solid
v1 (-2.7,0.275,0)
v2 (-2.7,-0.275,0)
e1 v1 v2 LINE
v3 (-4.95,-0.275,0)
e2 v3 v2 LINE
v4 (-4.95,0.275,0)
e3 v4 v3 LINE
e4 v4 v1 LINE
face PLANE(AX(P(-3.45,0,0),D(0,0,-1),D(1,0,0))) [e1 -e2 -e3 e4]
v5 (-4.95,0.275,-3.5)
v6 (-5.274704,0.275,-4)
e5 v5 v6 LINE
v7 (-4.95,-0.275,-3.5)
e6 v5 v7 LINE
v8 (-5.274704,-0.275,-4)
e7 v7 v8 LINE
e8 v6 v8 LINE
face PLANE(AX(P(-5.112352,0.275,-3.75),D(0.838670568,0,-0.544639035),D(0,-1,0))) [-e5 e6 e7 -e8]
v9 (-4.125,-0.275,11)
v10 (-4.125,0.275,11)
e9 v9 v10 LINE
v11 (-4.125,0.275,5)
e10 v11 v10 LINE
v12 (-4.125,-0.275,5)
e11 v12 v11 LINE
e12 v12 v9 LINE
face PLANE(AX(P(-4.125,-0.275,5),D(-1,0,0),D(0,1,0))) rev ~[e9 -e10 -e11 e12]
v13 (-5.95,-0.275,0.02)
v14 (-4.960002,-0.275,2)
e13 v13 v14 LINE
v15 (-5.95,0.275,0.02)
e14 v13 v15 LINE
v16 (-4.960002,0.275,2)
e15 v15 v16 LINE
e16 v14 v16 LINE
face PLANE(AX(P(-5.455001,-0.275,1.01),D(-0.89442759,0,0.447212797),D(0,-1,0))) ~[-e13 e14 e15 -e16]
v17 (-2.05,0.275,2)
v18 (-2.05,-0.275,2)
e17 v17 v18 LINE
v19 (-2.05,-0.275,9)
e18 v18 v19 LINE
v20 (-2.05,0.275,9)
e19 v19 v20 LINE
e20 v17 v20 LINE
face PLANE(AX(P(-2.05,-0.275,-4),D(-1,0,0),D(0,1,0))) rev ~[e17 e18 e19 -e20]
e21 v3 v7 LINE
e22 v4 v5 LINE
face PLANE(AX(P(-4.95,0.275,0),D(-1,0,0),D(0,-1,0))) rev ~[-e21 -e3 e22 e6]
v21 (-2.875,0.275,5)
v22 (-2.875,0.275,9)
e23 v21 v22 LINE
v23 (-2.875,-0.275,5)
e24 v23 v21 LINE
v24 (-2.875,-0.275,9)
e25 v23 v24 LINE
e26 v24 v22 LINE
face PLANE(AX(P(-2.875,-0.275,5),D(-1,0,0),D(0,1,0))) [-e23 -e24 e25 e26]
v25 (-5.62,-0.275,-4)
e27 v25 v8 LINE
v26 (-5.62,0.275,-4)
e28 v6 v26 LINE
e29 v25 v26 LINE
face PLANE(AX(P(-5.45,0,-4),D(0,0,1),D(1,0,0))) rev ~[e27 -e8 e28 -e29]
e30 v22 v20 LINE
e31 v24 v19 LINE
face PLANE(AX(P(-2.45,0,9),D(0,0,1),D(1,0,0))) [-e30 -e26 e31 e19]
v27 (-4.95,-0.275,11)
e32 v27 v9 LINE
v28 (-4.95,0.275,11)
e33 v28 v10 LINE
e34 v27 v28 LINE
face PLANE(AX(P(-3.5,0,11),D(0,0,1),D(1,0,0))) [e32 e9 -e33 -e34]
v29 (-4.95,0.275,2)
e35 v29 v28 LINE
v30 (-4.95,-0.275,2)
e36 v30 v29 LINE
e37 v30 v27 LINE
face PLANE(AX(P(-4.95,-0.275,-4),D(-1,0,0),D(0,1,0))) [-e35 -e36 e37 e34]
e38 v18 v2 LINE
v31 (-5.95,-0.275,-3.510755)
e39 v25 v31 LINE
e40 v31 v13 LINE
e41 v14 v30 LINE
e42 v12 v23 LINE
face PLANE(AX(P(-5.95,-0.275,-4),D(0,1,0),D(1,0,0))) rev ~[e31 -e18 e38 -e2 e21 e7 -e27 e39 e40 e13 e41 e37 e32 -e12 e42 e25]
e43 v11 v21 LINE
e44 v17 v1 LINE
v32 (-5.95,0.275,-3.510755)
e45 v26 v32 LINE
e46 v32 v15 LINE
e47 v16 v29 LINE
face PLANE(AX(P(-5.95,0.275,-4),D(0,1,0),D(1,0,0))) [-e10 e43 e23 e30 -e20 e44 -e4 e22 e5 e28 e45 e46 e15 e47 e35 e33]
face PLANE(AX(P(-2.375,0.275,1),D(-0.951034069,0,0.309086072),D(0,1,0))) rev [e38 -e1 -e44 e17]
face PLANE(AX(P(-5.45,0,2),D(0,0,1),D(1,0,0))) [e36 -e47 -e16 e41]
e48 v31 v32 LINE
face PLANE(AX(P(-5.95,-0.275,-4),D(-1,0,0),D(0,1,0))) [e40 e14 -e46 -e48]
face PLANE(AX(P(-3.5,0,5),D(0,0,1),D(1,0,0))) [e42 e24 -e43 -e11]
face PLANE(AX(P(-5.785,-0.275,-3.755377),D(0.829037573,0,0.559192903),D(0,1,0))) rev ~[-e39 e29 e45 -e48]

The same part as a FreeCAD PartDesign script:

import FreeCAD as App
import Part
import Sketcher

V = App.Vector
Q = App.Units.Quantity


def edges_at(feature, points):
    """Names of the edges that pass closest to the given points."""
    edges = feature.Shape.Edges
    near = lambda p: min(range(len(edges)), key=lambda i: edges[i].distToShape(Part.Vertex(*p))[0])
    return sorted({f"Edge{near(p) + 1}" for p in points})

doc = App.newDocument("Part")
body = doc.addObject("PartDesign::Body", "Body")

sketch1 = doc.addObject("Sketcher::SketchObject", "Sketch")
body.addObject(sketch1)
sketch1.AttachmentSupport = (doc.XY_Plane, [""])
sketch1.MapMode = "FlatFace"
sketch1.addGeometry([
    Part.LineSegment(V(-5, 0.3, 0), V(-5, -0.3, 0)),
    Part.LineSegment(V(-5, -0.3, 0), V(-2, -0.3, 0)),
    Part.LineSegment(V(-2, -0.3, 0), V(-2, 0.3, 0)),
    Part.LineSegment(V(-2, 0.3, 0), V(-5, 0.3, 0)),
], False)
sketch1.addConstraint([
    Sketcher.Constraint("Coincident", 0, 2, 1, 1),
    Sketcher.Constraint("Coincident", 1, 2, 2, 1),
    Sketcher.Constraint("Coincident", 2, 2, 3, 1),
    Sketcher.Constraint("Coincident", 3, 2, 0, 1),
    Sketcher.Constraint("Vertical", 0),
    Sketcher.Constraint("Horizontal", 1),
    Sketcher.Constraint("Vertical", 2),
    Sketcher.Constraint("Horizontal", 3),
    Sketcher.Constraint("DistanceX", 1, 1, 1, 2, Q("2.9 mm")),
    Sketcher.Constraint("DistanceY", 0, 2, 0, 1, Q("0.55 mm")),
    Sketcher.Constraint("DistanceX", 0, 2, -1, 1, Q("4.95 mm")),
    Sketcher.Constraint("DistanceY", 0, 2, -1, 1, Q("0.275 mm")),
])
pad1 = doc.addObject("PartDesign::Pad", "Pad")
body.addObject(pad1)
pad1.Profile = sketch1
pad1.Length = 15

sketch2 = doc.addObject("Sketcher::SketchObject", "Sketch001")
body.addObject(sketch2)
sketch2.AttachmentSupport = (doc.XY_Plane, [""])
sketch2.MapMode = "FlatFace"
sketch2.AttachmentOffset = App.Placement(V(0, 0, 9), App.Rotation())
sketch2.addGeometry([
    Part.LineSegment(V(-4.1, 0.3, 0), V(-4.1, -0.3, 0)),
    Part.LineSegment(V(-4.1, -0.3, 0), V(-2.9, -0.3, 0)),
    Part.LineSegment(V(-2.9, -0.3, 0), V(-2.9, 0.3, 0)),
    Part.LineSegment(V(-2.9, 0.3, 0), V(-4.1, 0.3, 0)),
], False)
sketch2.addConstraint([
    Sketcher.Constraint("Coincident", 0, 2, 1, 1),
    Sketcher.Constraint("Coincident", 1, 2, 2, 1),
    Sketcher.Constraint("Coincident", 2, 2, 3, 1),
    Sketcher.Constraint("Coincident", 3, 2, 0, 1),
    Sketcher.Constraint("Vertical", 0),
    Sketcher.Constraint("Horizontal", 1),
    Sketcher.Constraint("Vertical", 2),
    Sketcher.Constraint("Horizontal", 3),
    Sketcher.Constraint("DistanceX", 1, 1, 1, 2, Q("1.25 mm")),
    Sketcher.Constraint("DistanceY", 0, 2, 0, 1, Q("0.55 mm")),
    Sketcher.Constraint("DistanceX", 0, 2, -1, 1, Q("4.125 mm")),
    Sketcher.Constraint("DistanceY", 0, 2, -1, 1, Q("0.275 mm")),
])
pocket1 = doc.addObject("PartDesign::Pocket", "Pocket")
body.addObject(pocket1)
pocket1.Profile = sketch2
pocket1.Length = 6
pocket1.Reversed = True

sketch3 = doc.addObject("Sketcher::SketchObject", "Sketch002")
body.addObject(sketch3)
sketch3.AttachmentSupport = (doc.XY_Plane, [""])
sketch3.MapMode = "FlatFace"
sketch3.AttachmentOffset = App.Placement(V(0, 0, 13), App.Rotation())
sketch3.addGeometry([
    Part.LineSegment(V(-3, 0.3, 0), V(-3, -0.3, 0)),
    Part.LineSegment(V(-3, -0.3, 0), V(-1.9, -0.3, 0)),
    Part.LineSegment(V(-1.9, -0.3, 0), V(-1.9, 0.3, 0)),
    Part.LineSegment(V(-1.9, 0.3, 0), V(-3, 0.3, 0)),
], False)
sketch3.addConstraint([
    Sketcher.Constraint("Coincident", 0, 2, 1, 1),
    Sketcher.Constraint("Coincident", 1, 2, 2, 1),
    Sketcher.Constraint("Coincident", 2, 2, 3, 1),
    Sketcher.Constraint("Coincident", 3, 2, 0, 1),
    Sketcher.Constraint("Vertical", 0),
    Sketcher.Constraint("Horizontal", 1),
    Sketcher.Constraint("Vertical", 2),
    Sketcher.Constraint("Horizontal", 3),
    Sketcher.Constraint("DistanceX", 1, 1, 1, 2, Q("1.1 mm")),
    Sketcher.Constraint("DistanceY", 0, 2, 0, 1, Q("0.6 mm")),
    Sketcher.Constraint("DistanceX", 0, 2, -1, 1, Q("3 mm")),
    Sketcher.Constraint("DistanceY", 0, 2, -1, 1, Q("0.3 mm")),
])
pocket2 = doc.addObject("PartDesign::Pocket", "Pocket001")
body.addObject(pocket2)
pocket2.Profile = sketch3
pocket2.Length = 2
pocket2.Reversed = True

sketch4 = doc.addObject("Sketcher::SketchObject", "Sketch003")
body.addObject(sketch4)
sketch4.AttachmentSupport = (doc.XY_Plane, [""])
sketch4.MapMode = "FlatFace"
sketch4.addGeometry([
    Part.LineSegment(V(-6, 0.3, 0), V(-6, -0.3, 0)),
    Part.LineSegment(V(-6, -0.3, 0), V(-5, -0.3, 0)),
    Part.LineSegment(V(-5, -0.3, 0), V(-5, 0.3, 0)),
    Part.LineSegment(V(-5, 0.3, 0), V(-6, 0.3, 0)),
], False)
sketch4.addConstraint([
    Sketcher.Constraint("Coincident", 0, 2, 1, 1),
    Sketcher.Constraint("Coincident", 1, 2, 2, 1),
    Sketcher.Constraint("Coincident", 2, 2, 3, 1),
    Sketcher.Constraint("Coincident", 3, 2, 0, 1),
    Sketcher.Constraint("Vertical", 0),
    Sketcher.Constraint("Horizontal", 1),
    Sketcher.Constraint("Vertical", 2),
    Sketcher.Constraint("Horizontal", 3),
    Sketcher.Constraint("DistanceX", 1, 1, 1, 2, Q("1 mm")),
    Sketcher.Constraint("DistanceY", 0, 2, 0, 1, Q("0.55 mm")),
    Sketcher.Constraint("DistanceX", 0, 2, -1, 1, Q("5.95 mm")),
    Sketcher.Constraint("DistanceY", 0, 2, -1, 1, Q("0.275 mm")),
])
pad2 = doc.addObject("PartDesign::Pad", "Pad001")
body.addObject(pad2)
pad2.Profile = sketch4
pad2.Length = 6

sketch5 = doc.addObject("Sketcher::SketchObject", "Sketch004")
body.addObject(sketch5)
sketch5.AttachmentSupport = (doc.XY_Plane, [""])
sketch5.MapMode = "FlatFace"
sketch5.AttachmentOffset = App.Placement(V(0, 0, 4), App.Rotation())
sketch5.addGeometry([
    Part.LineSegment(V(-5, -0.3, 0), V(-5, 0.3, 0)),
    Part.LineSegment(V(-5, 0.3, 0), V(-1.9, 0.3, 0)),
    Part.LineSegment(V(-1.9, 0.3, 0), V(-1.9, -0.3, 0)),
    Part.LineSegment(V(-1.9, -0.3, 0), V(-5, -0.3, 0)),
], False)
sketch5.addConstraint([
    Sketcher.Constraint("Coincident", 0, 2, 1, 1),
    Sketcher.Constraint("Coincident", 1, 2, 2, 1),
    Sketcher.Constraint("Coincident", 2, 2, 3, 1),
    Sketcher.Constraint("Coincident", 3, 2, 0, 1),
    Sketcher.Constraint("Vertical", 0),
    Sketcher.Constraint("Horizontal", 1),
    Sketcher.Constraint("Vertical", 2),
    Sketcher.Constraint("Horizontal", 3),
    Sketcher.Constraint("DistanceX", 1, 1, 1, 2, Q("3 mm")),
    Sketcher.Constraint("DistanceY", 0, 1, 0, 2, Q("0.55 mm")),
    Sketcher.Constraint("DistanceX", 0, 2, -1, 1, Q("4.95 mm")),
    Sketcher.Constraint("DistanceY", -1, 1, 0, 2, Q("0.275 mm")),
])
pocket3 = doc.addObject("PartDesign::Pocket", "Pocket002")
body.addObject(pocket3)
pocket3.Profile = sketch5
pocket3.Length = 4
doc.recompute()

chamfer = doc.addObject("PartDesign::Chamfer", "Chamfer")
body.addObject(chamfer)
chamfer.Base = (pocket3, edges_at(pocket3, [(-2.05, 0, 4)]))
chamfer.ChamferType = "Two distances"
chamfer.Size = 2
chamfer.Size2 = 0.65
doc.recompute()

chamfer2 = doc.addObject("PartDesign::Chamfer", "Chamfer001")
body.addObject(chamfer2)
chamfer2.Base = (chamfer, edges_at(chamfer, [(-4.95, 0, 0)]))
chamfer2.ChamferType = "Distance and Angle"
chamfer2.Size = 0.5
chamfer2.Angle = 33
doc.recompute()

chamfer3 = doc.addObject("PartDesign::Chamfer", "Chamfer002")
body.addObject(chamfer3)
chamfer3.Base = (chamfer2, edges_at(chamfer2, [(-5.95, 0, 0)]))
chamfer3.ChamferType = "Distance and Angle"
chamfer3.Size = 0.33
chamfer3.Angle = 56
doc.recompute()

chamfer4 = doc.addObject("PartDesign::Chamfer", "Chamfer003")
body.addObject(chamfer4)
chamfer4.Base = (chamfer3, edges_at(chamfer3, [(-5.95, 0, 6)]))
chamfer4.ChamferType = "Distance and Angle"
chamfer4.Size = 1.98
chamfer4.Angle = 26.565
body2 = doc.addObject("PartDesign::Body", "Body001")
doc.recompute()

body.Placement = App.Placement(V(0, 0, -4), App.Rotation(V(0, 0, 1), 0))
boolean = doc.addObject("PartDesign::Boolean", "Boolean")
body2.addObject(boolean)
boolean.Type = "Fuse"
boolean.addObjects([body])

doc.recompute()
